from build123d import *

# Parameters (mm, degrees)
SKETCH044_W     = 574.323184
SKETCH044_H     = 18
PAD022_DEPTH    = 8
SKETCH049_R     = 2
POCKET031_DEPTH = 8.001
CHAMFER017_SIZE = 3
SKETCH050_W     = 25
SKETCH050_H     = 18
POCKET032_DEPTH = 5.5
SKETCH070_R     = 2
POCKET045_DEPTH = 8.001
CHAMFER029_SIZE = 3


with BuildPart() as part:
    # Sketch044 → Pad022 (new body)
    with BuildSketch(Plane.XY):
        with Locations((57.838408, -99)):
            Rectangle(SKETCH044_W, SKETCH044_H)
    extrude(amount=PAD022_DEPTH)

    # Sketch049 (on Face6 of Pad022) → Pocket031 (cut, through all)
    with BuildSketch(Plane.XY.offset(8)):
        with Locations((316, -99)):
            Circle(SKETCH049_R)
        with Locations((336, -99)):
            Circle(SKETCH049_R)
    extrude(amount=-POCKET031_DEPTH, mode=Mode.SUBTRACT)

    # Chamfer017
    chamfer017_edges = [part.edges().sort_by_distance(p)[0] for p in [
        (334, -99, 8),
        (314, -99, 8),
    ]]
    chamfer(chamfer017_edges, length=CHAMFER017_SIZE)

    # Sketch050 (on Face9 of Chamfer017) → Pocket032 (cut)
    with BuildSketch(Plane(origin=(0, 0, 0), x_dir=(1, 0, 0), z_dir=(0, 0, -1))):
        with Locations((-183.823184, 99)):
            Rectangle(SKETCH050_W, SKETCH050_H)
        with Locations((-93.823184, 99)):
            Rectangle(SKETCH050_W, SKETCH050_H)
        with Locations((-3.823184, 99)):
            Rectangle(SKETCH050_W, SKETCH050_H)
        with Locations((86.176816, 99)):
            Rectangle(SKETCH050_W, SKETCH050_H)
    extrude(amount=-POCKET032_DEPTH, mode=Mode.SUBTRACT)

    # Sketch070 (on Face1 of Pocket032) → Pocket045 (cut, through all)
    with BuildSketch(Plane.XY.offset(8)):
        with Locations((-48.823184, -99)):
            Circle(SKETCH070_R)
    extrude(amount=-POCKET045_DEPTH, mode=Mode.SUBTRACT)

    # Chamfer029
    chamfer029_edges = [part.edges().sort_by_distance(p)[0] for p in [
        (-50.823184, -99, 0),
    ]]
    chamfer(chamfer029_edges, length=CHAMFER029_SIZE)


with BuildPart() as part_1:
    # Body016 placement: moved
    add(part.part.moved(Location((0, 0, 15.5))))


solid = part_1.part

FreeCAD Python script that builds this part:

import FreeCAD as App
import Part
import Sketcher

V = App.Vector
Q = App.Units.Quantity


def edges_at(feature, points):
    """Names of the edges that pass closest to the given points."""
    edges = feature.Shape.Edges
    near = lambda p: min(range(len(edges)), key=lambda i: edges[i].distToShape(Part.Vertex(*p))[0])
    return sorted({f"Edge{near(p) + 1}" for p in points})

doc = App.newDocument("Part")
body = doc.addObject("PartDesign::Body", "Body")

sketch1 = doc.addObject("Sketcher::SketchObject", "Sketch")
body.addObject(sketch1)
sketch1.AttachmentSupport = (doc.XY_Plane, [""])
sketch1.MapMode = "FlatFace"
sketch1.addGeometry([
    Part.LineSegment(V(-229.323184, -90, 0), V(-229.323184, -108, 0)),
    Part.LineSegment(V(-229.323184, -108, 0), V(345, -108, 0)),
    Part.LineSegment(V(345, -108, 0), V(345, -90, 0)),
    Part.LineSegment(V(345, -90, 0), V(-229.323184, -90, 0)),
], False)
sketch1.addConstraint([
    Sketcher.Constraint("Coincident", 0, 2, 1, 1),
    Sketcher.Constraint("Coincident", 1, 2, 2, 1),
    Sketcher.Constraint("Coincident", 2, 2, 3, 1),
    Sketcher.Constraint("Coincident", 3, 2, 0, 1),
    Sketcher.Constraint("Vertical", 0),
    Sketcher.Constraint("Horizontal", 1),
    Sketcher.Constraint("Vertical", 2),
    Sketcher.Constraint("Horizontal", 3),
    Sketcher.Constraint("DistanceY", 0, 2, 0, 1, Q("18 mm")),
    Sketcher.Constraint("DistanceY", 0, 2, -1, 1, Q("108 mm")),
    Sketcher.Constraint("DistanceX", -1, 1, 1, 2, Q("345 mm")),
    Sketcher.Constraint("DistanceX", 1, 1, 1, 2, Q("574.323184 mm")),
])
pad1 = doc.addObject("PartDesign::Pad", "Pad")
body.addObject(pad1)
pad1.Profile = sketch1
pad1.Length = 8

sketch2 = doc.addObject("Sketcher::SketchObject", "Sketch001")
body.addObject(sketch2)
sketch2.AttachmentSupport = (doc.XY_Plane, [""])
sketch2.MapMode = "FlatFace"
sketch2.AttachmentOffset = App.Placement(V(0, 0, 8), App.Rotation())
sketch2.addGeometry([
    Part.Circle(V(316, -99, 0), V(0, 0, 1), 2),
    Part.Circle(V(336, -99, 0), V(0, 0, 1), 2),
], False)
sketch2.addConstraint([
    Sketcher.Constraint("Equal", 0, 1),
    Sketcher.Constraint("Horizontal", 0, 3, 1, 3),
    Sketcher.Constraint("Diameter", 0, Q("4 mm")),
    Sketcher.Constraint("DistanceX", -1, 1, 0, 3, Q("316 mm")),
    Sketcher.Constraint("DistanceY", 0, 3, -1, 1, Q("99 mm")),
    Sketcher.Constraint("DistanceX", -1, 1, 1, 3, Q("336 mm")),
])
pocket1 = doc.addObject("PartDesign::Pocket", "Pocket")
body.addObject(pocket1)
pocket1.Profile = sketch2
pocket1.Type = "ThroughAll"
doc.recompute()

chamfer = doc.addObject("PartDesign::Chamfer", "Chamfer")
body.addObject(chamfer)
chamfer.Base = (pocket1, edges_at(pocket1, [(334, -99, 8), (314, -99, 8)]))
chamfer.Size = 3

sketch3 = doc.addObject("Sketcher::SketchObject", "Sketch002")
body.addObject(sketch3)
sketch3.AttachmentSupport = (doc.XY_Plane, [""])
sketch3.MapMode = "FlatFace"
sketch3.addGeometry([
    Part.LineSegment(V(-196.323184, -108, 0), V(-196.323184, -90, 0)),
    Part.LineSegment(V(-196.323184, -90, 0), V(-171.323184, -90, 0)),
    Part.LineSegment(V(-171.323184, -90, 0), V(-171.323184, -108, 0)),
    Part.LineSegment(V(-171.323184, -108, 0), V(-196.323184, -108, 0)),
    Part.LineSegment(V(-106.323184, -108, 0), V(-106.323184, -90, 0)),
    Part.LineSegment(V(-106.323184, -90, 0), V(-81.323184, -90, 0)),
    Part.LineSegment(V(-81.323184, -90, 0), V(-81.323184, -108, 0)),
    Part.LineSegment(V(-81.323184, -108, 0), V(-106.323184, -108, 0)),
    Part.LineSegment(V(-16.323184, -108, 0), V(-16.323184, -90, 0)),
    Part.LineSegment(V(-16.323184, -90, 0), V(8.676816, -90, 0)),
    Part.LineSegment(V(8.676816, -90, 0), V(8.676816, -108, 0)),
    Part.LineSegment(V(8.676816, -108, 0), V(-16.323184, -108, 0)),
    Part.LineSegment(V(73.676816, -108, 0), V(73.676816, -90, 0)),
    Part.LineSegment(V(73.676816, -90, 0), V(98.676816, -90, 0)),
    Part.LineSegment(V(98.676816, -90, 0), V(98.676816, -108, 0)),
    Part.LineSegment(V(98.676816, -108, 0), V(73.676816, -108, 0)),
], False)
sketch3.addConstraint([
    Sketcher.Constraint("Coincident", 0, 2, 1, 1),
    Sketcher.Constraint("Coincident", 1, 2, 2, 1),
    Sketcher.Constraint("Coincident", 2, 2, 3, 1),
    Sketcher.Constraint("Coincident", 3, 2, 0, 1),
    Sketcher.Constraint("Coincident", 4, 2, 5, 1),
    Sketcher.Constraint("Coincident", 5, 2, 6, 1),
    Sketcher.Constraint("Coincident", 6, 2, 7, 1),
    Sketcher.Constraint("Coincident", 7, 2, 4, 1),
    Sketcher.Constraint("Coincident", 8, 2, 9, 1),
    Sketcher.Constraint("Coincident", 9, 2, 10, 1),
    Sketcher.Constraint("Coincident", 10, 2, 11, 1),
    Sketcher.Constraint("Coincident", 11, 2, 8, 1),
    Sketcher.Constraint("Coincident", 12, 2, 13, 1),
    Sketcher.Constraint("Coincident", 13, 2, 14, 1),
    Sketcher.Constraint("Coincident", 14, 2, 15, 1),
    Sketcher.Constraint("Coincident", 15, 2, 12, 1),
    Sketcher.Constraint("Vertical", 0),
    Sketcher.Constraint("Horizontal", 1),
    Sketcher.Constraint("Vertical", 2),
    Sketcher.Constraint("Horizontal", 3),
    Sketcher.Constraint("Vertical", 4),
    Sketcher.Constraint("Horizontal", 5),
    Sketcher.Constraint("Vertical", 6),
    Sketcher.Constraint("Horizontal", 7),
    Sketcher.Constraint("Vertical", 8),
    Sketcher.Constraint("Horizontal", 9),
    Sketcher.Constraint("Vertical", 10),
    Sketcher.Constraint("Horizontal", 11),
    Sketcher.Constraint("Vertical", 12),
    Sketcher.Constraint("Horizontal", 13),
    Sketcher.Constraint("Vertical", 14),
    Sketcher.Constraint("Horizontal", 15),
    Sketcher.Constraint("Horizontal", 1, 2, 4, 2),
    Sketcher.Constraint("Horizontal", 3, 2, 6, 2),
    Sketcher.Constraint("Horizontal", 5, 2, 8, 2),
    Sketcher.Constraint("Horizontal", 7, 2, 10, 2),
    Sketcher.Constraint("Horizontal", 9, 2, 12, 2),
    Sketcher.Constraint("Horizontal", 11, 2, 14, 2),
    Sketcher.Constraint("Equal", 3, 5),
    Sketcher.Constraint("Equal", 7, 9),
    Sketcher.Constraint("Equal", 11, 13),
    Sketcher.Constraint("DistanceX", 1, 1, 1, 2, Q("25 mm")),
    Sketcher.Constraint("DistanceY", 0, 1, 0, 2, Q("18 mm")),
    Sketcher.Constraint("DistanceY", 0, 2, -1, 1, Q("90 mm")),
    Sketcher.Constraint("DistanceX", 1, 2, 4, 2, Q("65 mm")),
    Sketcher.Constraint("DistanceX", 5, 2, 8, 2, Q("65 mm")),
    Sketcher.Constraint("DistanceX", 9, 2, 12, 2, Q("65 mm")),
    Sketcher.Constraint("DistanceX", 0, 2, -1, 1, Q("196.323184 mm")),
])
pocket2 = doc.addObject("PartDesign::Pocket", "Pocket001")
body.addObject(pocket2)
pocket2.Profile = sketch3
pocket2.Length = 5.5
pocket2.Reversed = True

sketch4 = doc.addObject("Sketcher::SketchObject", "Sketch003")
body.addObject(sketch4)
sketch4.AttachmentSupport = (doc.XY_Plane, [""])
sketch4.MapMode = "FlatFace"
sketch4.AttachmentOffset = App.Placement(V(0, 0, 8), App.Rotation())
sketch4.addGeometry(Part.Circle(V(-48.823184, -99, 0), V(0, 0, 1), 2), False)
sketch4.addConstraint([
    Sketcher.Constraint("Diameter", 0, Q("4 mm")),
    Sketcher.Constraint("DistanceY", 0, 3, -1, 1, Q("99 mm")),
    Sketcher.Constraint("DistanceX", 0, 3, -1, 1, Q("48.823184 mm")),
])
pocket3 = doc.addObject("PartDesign::Pocket", "Pocket002")
body.addObject(pocket3)
pocket3.Profile = sketch4
pocket3.Type = "ThroughAll"
doc.recompute()

chamfer2 = doc.addObject("PartDesign::Chamfer", "Chamfer001")
body.addObject(chamfer2)
chamfer2.Base = (pocket3, edges_at(pocket3, [(-50.823, -99, 0)]))
chamfer2.Size = 3
body2 = doc.addObject("PartDesign::Body", "Body001")
doc.recompute()

body.Placement = App.Placement(V(0, 0, 15.5), App.Rotation(V(0, 0, 1), 0))
boolean = doc.addObject("PartDesign::Boolean", "Boolean")
body2.addObject(boolean)
boolean.Type = "Fuse"
boolean.addObjects([body])

doc.recompute()
